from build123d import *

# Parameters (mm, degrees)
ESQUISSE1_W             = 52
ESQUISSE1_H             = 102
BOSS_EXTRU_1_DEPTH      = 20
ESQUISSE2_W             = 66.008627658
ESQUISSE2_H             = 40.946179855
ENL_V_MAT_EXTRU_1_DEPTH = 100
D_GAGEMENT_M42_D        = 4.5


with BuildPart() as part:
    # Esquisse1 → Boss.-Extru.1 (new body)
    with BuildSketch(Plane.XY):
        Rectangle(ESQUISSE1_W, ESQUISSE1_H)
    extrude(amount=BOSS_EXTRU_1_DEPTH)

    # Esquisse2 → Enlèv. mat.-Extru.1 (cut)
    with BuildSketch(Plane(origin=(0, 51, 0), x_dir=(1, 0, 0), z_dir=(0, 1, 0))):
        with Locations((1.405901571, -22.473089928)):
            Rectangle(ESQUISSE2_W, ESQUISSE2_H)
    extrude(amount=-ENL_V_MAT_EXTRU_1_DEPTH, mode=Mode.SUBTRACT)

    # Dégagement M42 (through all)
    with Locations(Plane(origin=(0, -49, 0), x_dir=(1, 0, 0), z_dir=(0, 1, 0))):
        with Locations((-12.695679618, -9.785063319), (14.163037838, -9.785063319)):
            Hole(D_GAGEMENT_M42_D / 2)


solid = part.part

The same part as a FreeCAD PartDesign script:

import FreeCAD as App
import Part
import Sketcher
Q = App.Units.Quantity


def add_polygon(sketch, points):
    """Adds a closed chain of lines whose ends are joined by coincident constraints."""
    first, n = sketch.GeometryCount, len(points)
    for a, b in zip(points, points[1:] + points[:1]):
        sketch.addGeometry(Part.LineSegment(App.Vector(*a, 0), App.Vector(*b, 0)), False)
    for i in range(n):
        sketch.addConstraint(Sketcher.Constraint("Coincident", first + i, 2, first + (i + 1) % n, 1))

doc = App.newDocument("Part")
params = doc.addObject("Spreadsheet::Sheet", "Params")
for row, (alias, value) in enumerate([
    ("sketch1_width", "52 mm"),
    ("sketch1_height", "102 mm"),
    ("pad1_length", "20 mm"),
    ("pocket1_length", "100 mm"),
    ("sketch3_diameter", "4.5 mm"),
    ("hole_diameter", "4.5 mm"),
], start=1):
    params.set(f"A{row}", alias)
    params.set(f"B{row}", "=" + value)
    params.setAlias(f"B{row}", alias)

body = doc.addObject("PartDesign::Body", "Body")

sketch1 = doc.addObject("Sketcher::SketchObject", "Sketch")
body.addObject(sketch1)
sketch1.AttachmentSupport = (doc.XY_Plane, [""])
sketch1.MapMode = "FlatFace"
add_polygon(sketch1, [(-26, 51), (-26, -51), (26, -51), (26, 51)])
sketch1.addConstraint([
    Sketcher.Constraint("Vertical", 0),
    Sketcher.Constraint("Horizontal", 1),
    Sketcher.Constraint("Vertical", 2),
    Sketcher.Constraint("Horizontal", 3),
    Sketcher.Constraint("Symmetric", 0, 2, 2, 2, -1, 1),
    Sketcher.Constraint("DistanceX", 1, 1, 1, 2, Q("52 mm")),
    Sketcher.Constraint("DistanceY", 0, 2, 0, 1, Q("102 mm")),
])
sketch1.setExpression("Constraints[9]", "Params.sketch1_width")
sketch1.setExpression("Constraints[10]", "Params.sketch1_height")
pad1 = doc.addObject("PartDesign::Pad", "Pad")
body.addObject(pad1)
pad1.Profile = sketch1
pad1.setExpression("Length", "Params.pad1_length")

sketch2 = doc.addObject("Sketcher::SketchObject", "Sketch001")
body.addObject(sketch2)
sketch2.AttachmentSupport = (doc.XZ_Plane, [""])
sketch2.MapMode = "FlatFace"
sketch2.AttachmentOffset = App.Placement(App.Vector(0, 0, -51), App.Rotation())
add_polygon(sketch2, [(-32, 2), (-32, 43), (34, 43), (34, 2)])
sketch2.addConstraint([
    Sketcher.Constraint("Vertical", 0),
    Sketcher.Constraint("Horizontal", 1),
    Sketcher.Constraint("Vertical", 2),
    Sketcher.Constraint("Horizontal", 3),
    Sketcher.Constraint("DistanceY", -1, 1, 2, 2, Q("2 mm")),
    Sketcher.Constraint("DistanceY", 0, 1, 0, 2, Q("40.94618 mm")),
    Sketcher.Constraint("DistanceX", 1, 1, 1, 2, Q("66.008628 mm")),
    Sketcher.Constraint("DistanceX", 0, 2, -1, 1, Q("31.598412 mm")),
])
pocket1 = doc.addObject("PartDesign::Pocket", "Pocket")
body.addObject(pocket1)
pocket1.Profile = sketch2
pocket1.setExpression("Length", "Params.pocket1_length")
pocket1.Reversed = True

sketch3 = doc.addObject("Sketcher::SketchObject", "Sketch002")
body.addObject(sketch3)
sketch3.AttachmentSupport = (doc.XZ_Plane, [""])
sketch3.MapMode = "FlatFace"
sketch3.AttachmentOffset = App.Placement(App.Vector(0, 0, 49), App.Rotation())
sketch3.addGeometry([
    Part.Circle(App.Vector(-12.7, 9.8, 0), App.Vector(0, 0, 1), 2.2),
    Part.Circle(App.Vector(14.2, 9.8, 0), App.Vector(0, 0, 1), 2.2),
], False)
sketch3.addConstraint([
    Sketcher.Constraint("Equal", 0, 1),
    Sketcher.Constraint("Horizontal", 0, 3, 1, 3),
    Sketcher.Constraint("Diameter", 0, Q("4.5 mm")),
    Sketcher.Constraint("DistanceX", 0, 3, -1, 1, Q("12.69568 mm")),
    Sketcher.Constraint("DistanceY", -1, 1, 0, 3, Q("9.785063 mm")),
    Sketcher.Constraint("DistanceX", -1, 1, 1, 3, Q("14.163038 mm")),
])
sketch3.setExpression("Constraints[2]", "Params.sketch3_diameter")
doc.recompute()
hole = doc.addObject("PartDesign::Hole", "Hole")
body.addObject(hole)
hole.Profile = sketch3
hole.ThreadType = "None"
hole.setExpression("Diameter", "Params.hole_diameter")
hole.DepthType = "ThroughAll"
hole.Reversed = True

doc.recompute()
